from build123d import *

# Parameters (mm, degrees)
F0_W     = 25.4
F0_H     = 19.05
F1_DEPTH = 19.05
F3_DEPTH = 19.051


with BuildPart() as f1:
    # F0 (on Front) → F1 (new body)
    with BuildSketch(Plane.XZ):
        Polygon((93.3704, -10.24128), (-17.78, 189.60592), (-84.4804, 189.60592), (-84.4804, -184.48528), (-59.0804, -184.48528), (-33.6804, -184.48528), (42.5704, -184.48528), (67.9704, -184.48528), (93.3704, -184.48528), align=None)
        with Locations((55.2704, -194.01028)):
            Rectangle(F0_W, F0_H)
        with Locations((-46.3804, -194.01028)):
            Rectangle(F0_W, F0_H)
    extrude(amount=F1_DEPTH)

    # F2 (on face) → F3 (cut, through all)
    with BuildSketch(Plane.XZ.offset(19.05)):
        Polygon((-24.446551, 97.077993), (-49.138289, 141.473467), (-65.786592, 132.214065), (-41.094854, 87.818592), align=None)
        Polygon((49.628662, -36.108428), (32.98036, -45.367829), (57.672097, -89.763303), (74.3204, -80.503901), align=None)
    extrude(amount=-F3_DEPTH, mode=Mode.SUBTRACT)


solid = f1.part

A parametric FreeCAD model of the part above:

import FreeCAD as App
import Part
import Sketcher
Q = App.Units.Quantity


def add_polygon(sketch, points):
    """Adds a closed chain of lines whose ends are joined by coincident constraints."""
    first, n = sketch.GeometryCount, len(points)
    for a, b in zip(points, points[1:] + points[:1]):
        sketch.addGeometry(Part.LineSegment(App.Vector(*a, 0), App.Vector(*b, 0)), False)
    for i in range(n):
        sketch.addConstraint(Sketcher.Constraint("Coincident", first + i, 2, first + (i + 1) % n, 1))

doc = App.newDocument("Part")
body = doc.addObject("PartDesign::Body", "Body")

# Sketch on XZ plane
sketch1 = doc.addObject("Sketcher::SketchObject", "Sketch")
body.addObject(sketch1)
sketch1.AttachmentSupport = (doc.XZ_Plane, [""])
sketch1.MapMode = "FlatFace"
add_polygon(sketch1, [(93.3704, -10.24128), (-17.78, 189.60592), (-84.4804, 189.60592), (-84.4804, -184.48528), (-59.0804, -184.48528), (-59.0804, -203.53528), (-33.6804, -203.53528), (-33.6804, -184.48528), (42.5704, -184.48528), (42.5704, -203.53528), (67.9704, -203.53528), (67.9704, -184.48528), (93.3704, -184.48528)])  # lines 0-12
sketch1.addConstraint([
    Sketcher.Constraint("Horizontal", 1),
    Sketcher.Constraint("Vertical", 2),
    Sketcher.Constraint("Horizontal", 3),
    Sketcher.Constraint("Vertical", 4),
    Sketcher.Constraint("Horizontal", 5),
    Sketcher.Constraint("Vertical", 6),
    Sketcher.Constraint("Horizontal", 7),
    Sketcher.Constraint("Vertical", 8),
    Sketcher.Constraint("Horizontal", 9),
    Sketcher.Constraint("Vertical", 10),
    Sketcher.Constraint("Horizontal", 11),
    Sketcher.Constraint("Vertical", 12),
    Sketcher.Constraint("Horizontal", 3, 2, 6, 2),
    Sketcher.Constraint("Horizontal", 5, 2, 8, 2),
    Sketcher.Constraint("Horizontal", 7, 2, 10, 2),
    Sketcher.Constraint("Equal", 3, 5),
    Sketcher.Constraint("Equal", 5, 9),
    Sketcher.Constraint("Equal", 9, 11),
    Sketcher.Constraint("DistanceX", 3, 1, 3, 2, Q("1 in")),
    Sketcher.Constraint("DistanceY", 4, 2, 4, 1, Q("0.75 in")),
    Sketcher.Constraint("DistanceY", 12, 1, 12, 2, Q("6.86 in")),
    Sketcher.Constraint("DistanceX", 0, 2, -1, 1, Q("0.7 in")),
    Sketcher.Constraint("DistanceX", 1, 2, 1, 1, Q("2.626 in")),
    Sketcher.Constraint("DistanceX", 7, 1, 7, 2, Q("3.002 in")),
    Sketcher.Constraint("DistanceY", 2, 2, 2, 1, Q("14.728 in")),
    Sketcher.Constraint("DistanceY", -1, 1, 0, 2, Q("7.4648 in")),
])
pad1 = doc.addObject("PartDesign::Pad", "Pad")
body.addObject(pad1)
pad1.Profile = sketch1
pad1.Length = Q("0.75 in")

# Sketch on XZ plane
sketch2 = doc.addObject("Sketcher::SketchObject", "Sketch001")
body.addObject(sketch2)
sketch2.AttachmentSupport = (doc.XZ_Plane, [""])
sketch2.MapMode = "FlatFace"
sketch2.AttachmentOffset = App.Placement(App.Vector(0, 0, 0.75 * 25.4), App.Rotation())
add_polygon(sketch2, [(-24.446551, 97.077993), (-49.138289, 141.473467), (-65.786592, 132.214065), (-41.094854, 87.818592)])  # lines 0-3
add_polygon(sketch2, [(49.628662, -36.108428), (32.98036, -45.367829), (57.672097, -89.763303), (74.3204, -80.503901)])  # lines 4-7
sketch2.addConstraint([
    Sketcher.Constraint("Perpendicular", 0, 1),
    Sketcher.Constraint("Perpendicular", 1, 2),
    Sketcher.Constraint("Perpendicular", 2, 3),
    Sketcher.Constraint("Parallel", 3, 4),
    Sketcher.Constraint("Perpendicular", 4, 5),
    Sketcher.Constraint("Perpendicular", 5, 6),
    Sketcher.Constraint("Perpendicular", 6, 7),
    Sketcher.Constraint("Equal", 3, 4),
    Sketcher.Constraint("Equal", 2, 5),
    Sketcher.Constraint("Distance", 0, Q("2 in")),
    Sketcher.Constraint("Distance", 1, Q("0.75 in")),
    Sketcher.Constraint("DistanceX", -1, 1, 6, 2, Q("2.926 in")),
    Sketcher.Constraint("DistanceY", 6, 2, -1, 1, Q("80.503901 mm")),
    Sketcher.Constraint("DistanceY", 1, 2, 0, 2, Q("9.259402 mm")),
    Sketcher.Constraint("DistanceX", 0, 2, -1, 1, Q("49.138289 mm")),
    Sketcher.Constraint("DistanceY", -1, 1, 2, 2, Q("87.818592 mm")),
])
pocket1 = doc.addObject("PartDesign::Pocket", "Pocket")
body.addObject(pocket1)
pocket1.Profile = sketch2
pocket1.Type = "ThroughAll"

doc.recompute()
